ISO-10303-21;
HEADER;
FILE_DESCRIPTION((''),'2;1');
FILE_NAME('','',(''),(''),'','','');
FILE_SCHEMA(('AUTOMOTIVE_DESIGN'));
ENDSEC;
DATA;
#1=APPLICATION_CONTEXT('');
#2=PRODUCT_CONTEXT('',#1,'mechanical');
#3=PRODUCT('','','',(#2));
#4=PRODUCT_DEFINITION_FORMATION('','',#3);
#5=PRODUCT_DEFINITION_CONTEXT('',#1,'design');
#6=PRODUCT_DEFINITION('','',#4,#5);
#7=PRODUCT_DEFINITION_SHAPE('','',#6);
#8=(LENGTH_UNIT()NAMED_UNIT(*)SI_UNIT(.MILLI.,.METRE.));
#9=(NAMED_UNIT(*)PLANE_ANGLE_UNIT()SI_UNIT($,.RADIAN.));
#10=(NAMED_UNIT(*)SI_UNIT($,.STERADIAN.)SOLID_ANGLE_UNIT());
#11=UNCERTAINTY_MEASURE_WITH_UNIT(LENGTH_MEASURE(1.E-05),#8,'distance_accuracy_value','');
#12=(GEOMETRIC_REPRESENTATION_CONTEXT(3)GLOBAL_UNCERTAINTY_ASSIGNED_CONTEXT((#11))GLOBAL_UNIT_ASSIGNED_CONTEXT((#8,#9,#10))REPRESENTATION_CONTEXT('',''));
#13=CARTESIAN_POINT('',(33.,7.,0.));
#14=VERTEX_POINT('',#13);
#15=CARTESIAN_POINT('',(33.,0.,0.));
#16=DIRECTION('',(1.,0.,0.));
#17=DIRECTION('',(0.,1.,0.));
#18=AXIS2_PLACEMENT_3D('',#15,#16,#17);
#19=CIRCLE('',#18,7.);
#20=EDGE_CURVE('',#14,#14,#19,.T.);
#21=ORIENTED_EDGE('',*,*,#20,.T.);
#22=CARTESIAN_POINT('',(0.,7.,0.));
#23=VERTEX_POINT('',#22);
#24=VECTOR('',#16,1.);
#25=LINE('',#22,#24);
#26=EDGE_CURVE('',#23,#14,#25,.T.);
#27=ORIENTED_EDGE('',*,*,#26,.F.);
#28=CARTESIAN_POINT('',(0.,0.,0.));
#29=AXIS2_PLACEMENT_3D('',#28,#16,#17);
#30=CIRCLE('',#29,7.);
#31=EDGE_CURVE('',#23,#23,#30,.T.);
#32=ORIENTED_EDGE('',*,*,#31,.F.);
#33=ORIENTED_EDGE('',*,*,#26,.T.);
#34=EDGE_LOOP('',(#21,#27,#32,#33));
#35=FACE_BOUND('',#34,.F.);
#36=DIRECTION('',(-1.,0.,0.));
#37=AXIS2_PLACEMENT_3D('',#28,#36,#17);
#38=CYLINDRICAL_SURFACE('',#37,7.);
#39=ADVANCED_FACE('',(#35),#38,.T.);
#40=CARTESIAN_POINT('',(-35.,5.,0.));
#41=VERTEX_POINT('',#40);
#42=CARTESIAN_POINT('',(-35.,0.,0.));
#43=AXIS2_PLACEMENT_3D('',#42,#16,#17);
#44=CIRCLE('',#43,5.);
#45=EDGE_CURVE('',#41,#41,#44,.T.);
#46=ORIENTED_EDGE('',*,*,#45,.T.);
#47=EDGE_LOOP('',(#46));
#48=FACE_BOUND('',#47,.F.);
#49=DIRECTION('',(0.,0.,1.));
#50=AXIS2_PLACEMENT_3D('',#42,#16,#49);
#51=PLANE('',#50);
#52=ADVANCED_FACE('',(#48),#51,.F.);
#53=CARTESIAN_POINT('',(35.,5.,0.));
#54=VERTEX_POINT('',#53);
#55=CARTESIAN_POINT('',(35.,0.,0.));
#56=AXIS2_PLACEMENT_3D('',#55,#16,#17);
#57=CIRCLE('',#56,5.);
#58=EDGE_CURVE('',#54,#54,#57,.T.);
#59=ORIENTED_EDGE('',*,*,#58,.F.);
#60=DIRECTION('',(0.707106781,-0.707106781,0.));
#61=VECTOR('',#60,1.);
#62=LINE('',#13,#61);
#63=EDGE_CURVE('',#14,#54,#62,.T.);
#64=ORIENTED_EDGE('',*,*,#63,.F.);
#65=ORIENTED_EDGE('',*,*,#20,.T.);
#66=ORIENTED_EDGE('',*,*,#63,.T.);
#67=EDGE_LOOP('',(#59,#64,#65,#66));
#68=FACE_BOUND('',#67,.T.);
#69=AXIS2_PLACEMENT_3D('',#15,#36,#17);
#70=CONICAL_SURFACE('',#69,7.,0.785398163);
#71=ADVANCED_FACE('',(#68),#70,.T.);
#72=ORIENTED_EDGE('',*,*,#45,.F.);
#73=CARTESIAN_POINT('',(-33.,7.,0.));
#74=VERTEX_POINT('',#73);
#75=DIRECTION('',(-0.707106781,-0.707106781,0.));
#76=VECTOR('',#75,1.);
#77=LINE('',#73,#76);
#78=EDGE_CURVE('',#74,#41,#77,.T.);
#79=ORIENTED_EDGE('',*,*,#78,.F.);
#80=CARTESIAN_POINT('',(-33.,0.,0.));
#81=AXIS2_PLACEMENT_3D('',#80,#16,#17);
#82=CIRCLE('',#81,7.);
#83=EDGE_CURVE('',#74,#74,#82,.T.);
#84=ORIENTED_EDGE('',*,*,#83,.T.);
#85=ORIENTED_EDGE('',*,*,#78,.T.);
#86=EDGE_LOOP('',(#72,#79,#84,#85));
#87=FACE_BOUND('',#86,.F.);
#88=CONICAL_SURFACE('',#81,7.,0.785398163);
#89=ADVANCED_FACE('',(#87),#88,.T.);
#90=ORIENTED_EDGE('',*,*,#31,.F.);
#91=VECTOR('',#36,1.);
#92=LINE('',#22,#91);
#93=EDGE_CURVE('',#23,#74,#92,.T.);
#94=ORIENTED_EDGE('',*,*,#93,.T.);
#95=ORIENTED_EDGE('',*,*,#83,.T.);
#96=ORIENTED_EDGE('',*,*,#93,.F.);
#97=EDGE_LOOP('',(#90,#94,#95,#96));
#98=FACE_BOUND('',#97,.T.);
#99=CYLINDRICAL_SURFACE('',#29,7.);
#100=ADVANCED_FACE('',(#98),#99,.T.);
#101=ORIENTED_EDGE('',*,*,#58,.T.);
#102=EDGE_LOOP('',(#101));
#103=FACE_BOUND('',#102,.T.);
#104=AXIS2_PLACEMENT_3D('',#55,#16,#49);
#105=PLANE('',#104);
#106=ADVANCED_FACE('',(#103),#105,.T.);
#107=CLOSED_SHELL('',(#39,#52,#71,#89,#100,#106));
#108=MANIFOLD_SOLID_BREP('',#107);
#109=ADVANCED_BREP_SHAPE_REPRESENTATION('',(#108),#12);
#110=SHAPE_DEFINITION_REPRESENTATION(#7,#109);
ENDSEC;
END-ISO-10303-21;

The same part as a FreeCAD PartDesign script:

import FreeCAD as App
import Part
import Sketcher

V = App.Vector
Q = App.Units.Quantity


def edges_at(feature, points):
    """Names of the edges that pass closest to the given points."""
    edges = feature.Shape.Edges
    near = lambda p: min(range(len(edges)), key=lambda i: edges[i].distToShape(Part.Vertex(*p))[0])
    return sorted({f"Edge{near(p) + 1}" for p in points})

doc = App.newDocument("Part")
params = doc.addObject("Spreadsheet::Sheet", "Params")
for row, (alias, value) in enumerate([
    ("sketch1_diameter", "14 mm"),
    ("pad1_length", "70 mm"),
    ("chamfer_size", "2 mm"),
], start=1):
    params.set(f"A{row}", alias)
    params.set(f"B{row}", "=" + value)
    params.setAlias(f"B{row}", alias)

body = doc.addObject("PartDesign::Body", "Body")

# Sketch on YZ plane
sketch1 = body.newObject("Sketcher::SketchObject", "Sketch")
sketch1.AttachmentSupport = (doc.getObject("YZ_Plane"), [""])
sketch1.MapMode = "FlatFace"
sketch1.addGeometry(Part.Circle(V(0, 0, 0), V(0, 0, 1), 7), False)
sketch1.addConstraint([
    Sketcher.Constraint("Coincident", 0, 3, -1, 1),
    Sketcher.Constraint("Diameter", 0, Q("14 mm")),
])
sketch1.setExpression("Constraints[1]", "Params.sketch1_diameter")
pad1 = body.newObject("PartDesign::Pad", "Pad")
pad1.Profile = sketch1
pad1.setExpression("Length", "Params.pad1_length")
pad1.Midplane = True
doc.recompute()

chamfer = body.newObject("PartDesign::Chamfer", "Chamfer")
chamfer.Base = (pad1, edges_at(pad1, [(35, -7, 0), (-35, -7, 0)]))
chamfer.setExpression("Size", "Params.chamfer_size")

doc.recompute()
